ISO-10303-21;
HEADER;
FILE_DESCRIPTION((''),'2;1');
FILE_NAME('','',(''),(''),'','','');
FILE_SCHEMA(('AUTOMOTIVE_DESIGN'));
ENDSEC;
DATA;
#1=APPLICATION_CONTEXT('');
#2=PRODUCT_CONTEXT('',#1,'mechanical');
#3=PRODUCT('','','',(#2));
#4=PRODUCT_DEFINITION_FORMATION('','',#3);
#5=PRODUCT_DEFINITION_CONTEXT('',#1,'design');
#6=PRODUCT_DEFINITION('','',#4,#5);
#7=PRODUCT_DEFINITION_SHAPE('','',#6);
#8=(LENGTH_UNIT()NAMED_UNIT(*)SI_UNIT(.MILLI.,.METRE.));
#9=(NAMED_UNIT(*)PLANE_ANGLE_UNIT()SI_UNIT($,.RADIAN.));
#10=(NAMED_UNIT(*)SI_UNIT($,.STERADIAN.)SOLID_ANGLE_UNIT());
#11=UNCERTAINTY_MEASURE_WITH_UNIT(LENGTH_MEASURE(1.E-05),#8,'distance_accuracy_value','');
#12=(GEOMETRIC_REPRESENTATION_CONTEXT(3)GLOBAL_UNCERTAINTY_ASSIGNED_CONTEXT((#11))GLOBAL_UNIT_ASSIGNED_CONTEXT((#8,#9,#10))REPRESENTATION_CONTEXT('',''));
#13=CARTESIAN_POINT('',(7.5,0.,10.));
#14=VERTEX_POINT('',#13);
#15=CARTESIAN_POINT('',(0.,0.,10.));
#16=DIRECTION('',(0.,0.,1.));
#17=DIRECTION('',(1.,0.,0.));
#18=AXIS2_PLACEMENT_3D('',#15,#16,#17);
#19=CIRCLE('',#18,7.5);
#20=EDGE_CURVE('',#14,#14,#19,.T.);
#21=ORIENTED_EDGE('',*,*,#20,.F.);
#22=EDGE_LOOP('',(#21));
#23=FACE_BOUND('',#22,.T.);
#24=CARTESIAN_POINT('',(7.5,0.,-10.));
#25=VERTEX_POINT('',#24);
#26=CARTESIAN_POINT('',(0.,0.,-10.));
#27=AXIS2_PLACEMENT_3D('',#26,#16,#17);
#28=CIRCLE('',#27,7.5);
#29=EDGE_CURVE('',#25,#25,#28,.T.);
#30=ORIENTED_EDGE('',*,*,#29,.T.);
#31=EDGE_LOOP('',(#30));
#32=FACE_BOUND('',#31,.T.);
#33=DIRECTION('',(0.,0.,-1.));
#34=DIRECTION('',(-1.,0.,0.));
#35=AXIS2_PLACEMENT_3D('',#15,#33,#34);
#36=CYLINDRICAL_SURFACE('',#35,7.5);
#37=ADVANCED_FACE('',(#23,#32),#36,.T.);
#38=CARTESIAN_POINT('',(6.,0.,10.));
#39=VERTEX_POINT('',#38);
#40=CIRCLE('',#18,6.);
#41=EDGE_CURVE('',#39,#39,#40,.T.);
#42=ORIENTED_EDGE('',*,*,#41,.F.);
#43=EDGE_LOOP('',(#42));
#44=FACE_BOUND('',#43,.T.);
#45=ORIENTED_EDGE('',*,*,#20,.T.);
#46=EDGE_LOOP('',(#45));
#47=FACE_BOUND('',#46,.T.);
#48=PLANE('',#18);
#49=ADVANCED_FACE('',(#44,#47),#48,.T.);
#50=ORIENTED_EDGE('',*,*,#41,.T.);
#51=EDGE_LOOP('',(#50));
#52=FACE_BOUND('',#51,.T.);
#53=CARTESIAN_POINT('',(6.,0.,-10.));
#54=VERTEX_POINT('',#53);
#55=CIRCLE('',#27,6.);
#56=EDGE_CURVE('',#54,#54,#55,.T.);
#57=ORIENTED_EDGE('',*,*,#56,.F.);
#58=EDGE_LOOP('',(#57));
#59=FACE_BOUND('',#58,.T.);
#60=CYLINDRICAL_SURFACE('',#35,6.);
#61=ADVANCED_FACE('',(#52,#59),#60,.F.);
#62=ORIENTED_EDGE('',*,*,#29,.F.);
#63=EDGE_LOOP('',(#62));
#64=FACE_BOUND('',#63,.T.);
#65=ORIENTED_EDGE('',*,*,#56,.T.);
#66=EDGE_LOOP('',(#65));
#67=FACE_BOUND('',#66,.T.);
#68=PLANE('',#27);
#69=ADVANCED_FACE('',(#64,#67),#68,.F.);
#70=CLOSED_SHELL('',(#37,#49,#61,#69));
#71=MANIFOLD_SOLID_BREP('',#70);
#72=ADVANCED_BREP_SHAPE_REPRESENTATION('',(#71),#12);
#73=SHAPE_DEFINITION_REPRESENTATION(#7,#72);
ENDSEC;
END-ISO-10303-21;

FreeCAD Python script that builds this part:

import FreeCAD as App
import Part
import Sketcher
from FreeCAD import Vector

doc = App.newDocument("Part")
body = doc.addObject("PartDesign::Body", "Body")

# Sketch on XY plane
sketch1 = body.newObject("Sketcher::SketchObject", "Sketch")
sketch1.AttachmentSupport = (doc.getObject("XY_Plane"), [""])
sketch1.MapMode = "FlatFace"
sketch1.addGeometry([
    Part.Circle(Vector(0, 0, 0), Vector(0, 0, 1), 8),
    Part.Circle(Vector(0, 0, 0), Vector(0, 0, 1), 6),
], False)
sketch1.addConstraint([
    Sketcher.Constraint("Coincident", 0, 3, -1, 1),
    Sketcher.Constraint("Coincident", 1, 3, -1, 1),
    Sketcher.Constraint("Diameter", 0, 15.0),
    Sketcher.Constraint("Diameter", 1, 12.0),
])
pad1 = body.newObject("PartDesign::Pad", "Pad")
pad1.Profile = sketch1
pad1.Length = 20
pad1.Midplane = True

doc.recompute()
